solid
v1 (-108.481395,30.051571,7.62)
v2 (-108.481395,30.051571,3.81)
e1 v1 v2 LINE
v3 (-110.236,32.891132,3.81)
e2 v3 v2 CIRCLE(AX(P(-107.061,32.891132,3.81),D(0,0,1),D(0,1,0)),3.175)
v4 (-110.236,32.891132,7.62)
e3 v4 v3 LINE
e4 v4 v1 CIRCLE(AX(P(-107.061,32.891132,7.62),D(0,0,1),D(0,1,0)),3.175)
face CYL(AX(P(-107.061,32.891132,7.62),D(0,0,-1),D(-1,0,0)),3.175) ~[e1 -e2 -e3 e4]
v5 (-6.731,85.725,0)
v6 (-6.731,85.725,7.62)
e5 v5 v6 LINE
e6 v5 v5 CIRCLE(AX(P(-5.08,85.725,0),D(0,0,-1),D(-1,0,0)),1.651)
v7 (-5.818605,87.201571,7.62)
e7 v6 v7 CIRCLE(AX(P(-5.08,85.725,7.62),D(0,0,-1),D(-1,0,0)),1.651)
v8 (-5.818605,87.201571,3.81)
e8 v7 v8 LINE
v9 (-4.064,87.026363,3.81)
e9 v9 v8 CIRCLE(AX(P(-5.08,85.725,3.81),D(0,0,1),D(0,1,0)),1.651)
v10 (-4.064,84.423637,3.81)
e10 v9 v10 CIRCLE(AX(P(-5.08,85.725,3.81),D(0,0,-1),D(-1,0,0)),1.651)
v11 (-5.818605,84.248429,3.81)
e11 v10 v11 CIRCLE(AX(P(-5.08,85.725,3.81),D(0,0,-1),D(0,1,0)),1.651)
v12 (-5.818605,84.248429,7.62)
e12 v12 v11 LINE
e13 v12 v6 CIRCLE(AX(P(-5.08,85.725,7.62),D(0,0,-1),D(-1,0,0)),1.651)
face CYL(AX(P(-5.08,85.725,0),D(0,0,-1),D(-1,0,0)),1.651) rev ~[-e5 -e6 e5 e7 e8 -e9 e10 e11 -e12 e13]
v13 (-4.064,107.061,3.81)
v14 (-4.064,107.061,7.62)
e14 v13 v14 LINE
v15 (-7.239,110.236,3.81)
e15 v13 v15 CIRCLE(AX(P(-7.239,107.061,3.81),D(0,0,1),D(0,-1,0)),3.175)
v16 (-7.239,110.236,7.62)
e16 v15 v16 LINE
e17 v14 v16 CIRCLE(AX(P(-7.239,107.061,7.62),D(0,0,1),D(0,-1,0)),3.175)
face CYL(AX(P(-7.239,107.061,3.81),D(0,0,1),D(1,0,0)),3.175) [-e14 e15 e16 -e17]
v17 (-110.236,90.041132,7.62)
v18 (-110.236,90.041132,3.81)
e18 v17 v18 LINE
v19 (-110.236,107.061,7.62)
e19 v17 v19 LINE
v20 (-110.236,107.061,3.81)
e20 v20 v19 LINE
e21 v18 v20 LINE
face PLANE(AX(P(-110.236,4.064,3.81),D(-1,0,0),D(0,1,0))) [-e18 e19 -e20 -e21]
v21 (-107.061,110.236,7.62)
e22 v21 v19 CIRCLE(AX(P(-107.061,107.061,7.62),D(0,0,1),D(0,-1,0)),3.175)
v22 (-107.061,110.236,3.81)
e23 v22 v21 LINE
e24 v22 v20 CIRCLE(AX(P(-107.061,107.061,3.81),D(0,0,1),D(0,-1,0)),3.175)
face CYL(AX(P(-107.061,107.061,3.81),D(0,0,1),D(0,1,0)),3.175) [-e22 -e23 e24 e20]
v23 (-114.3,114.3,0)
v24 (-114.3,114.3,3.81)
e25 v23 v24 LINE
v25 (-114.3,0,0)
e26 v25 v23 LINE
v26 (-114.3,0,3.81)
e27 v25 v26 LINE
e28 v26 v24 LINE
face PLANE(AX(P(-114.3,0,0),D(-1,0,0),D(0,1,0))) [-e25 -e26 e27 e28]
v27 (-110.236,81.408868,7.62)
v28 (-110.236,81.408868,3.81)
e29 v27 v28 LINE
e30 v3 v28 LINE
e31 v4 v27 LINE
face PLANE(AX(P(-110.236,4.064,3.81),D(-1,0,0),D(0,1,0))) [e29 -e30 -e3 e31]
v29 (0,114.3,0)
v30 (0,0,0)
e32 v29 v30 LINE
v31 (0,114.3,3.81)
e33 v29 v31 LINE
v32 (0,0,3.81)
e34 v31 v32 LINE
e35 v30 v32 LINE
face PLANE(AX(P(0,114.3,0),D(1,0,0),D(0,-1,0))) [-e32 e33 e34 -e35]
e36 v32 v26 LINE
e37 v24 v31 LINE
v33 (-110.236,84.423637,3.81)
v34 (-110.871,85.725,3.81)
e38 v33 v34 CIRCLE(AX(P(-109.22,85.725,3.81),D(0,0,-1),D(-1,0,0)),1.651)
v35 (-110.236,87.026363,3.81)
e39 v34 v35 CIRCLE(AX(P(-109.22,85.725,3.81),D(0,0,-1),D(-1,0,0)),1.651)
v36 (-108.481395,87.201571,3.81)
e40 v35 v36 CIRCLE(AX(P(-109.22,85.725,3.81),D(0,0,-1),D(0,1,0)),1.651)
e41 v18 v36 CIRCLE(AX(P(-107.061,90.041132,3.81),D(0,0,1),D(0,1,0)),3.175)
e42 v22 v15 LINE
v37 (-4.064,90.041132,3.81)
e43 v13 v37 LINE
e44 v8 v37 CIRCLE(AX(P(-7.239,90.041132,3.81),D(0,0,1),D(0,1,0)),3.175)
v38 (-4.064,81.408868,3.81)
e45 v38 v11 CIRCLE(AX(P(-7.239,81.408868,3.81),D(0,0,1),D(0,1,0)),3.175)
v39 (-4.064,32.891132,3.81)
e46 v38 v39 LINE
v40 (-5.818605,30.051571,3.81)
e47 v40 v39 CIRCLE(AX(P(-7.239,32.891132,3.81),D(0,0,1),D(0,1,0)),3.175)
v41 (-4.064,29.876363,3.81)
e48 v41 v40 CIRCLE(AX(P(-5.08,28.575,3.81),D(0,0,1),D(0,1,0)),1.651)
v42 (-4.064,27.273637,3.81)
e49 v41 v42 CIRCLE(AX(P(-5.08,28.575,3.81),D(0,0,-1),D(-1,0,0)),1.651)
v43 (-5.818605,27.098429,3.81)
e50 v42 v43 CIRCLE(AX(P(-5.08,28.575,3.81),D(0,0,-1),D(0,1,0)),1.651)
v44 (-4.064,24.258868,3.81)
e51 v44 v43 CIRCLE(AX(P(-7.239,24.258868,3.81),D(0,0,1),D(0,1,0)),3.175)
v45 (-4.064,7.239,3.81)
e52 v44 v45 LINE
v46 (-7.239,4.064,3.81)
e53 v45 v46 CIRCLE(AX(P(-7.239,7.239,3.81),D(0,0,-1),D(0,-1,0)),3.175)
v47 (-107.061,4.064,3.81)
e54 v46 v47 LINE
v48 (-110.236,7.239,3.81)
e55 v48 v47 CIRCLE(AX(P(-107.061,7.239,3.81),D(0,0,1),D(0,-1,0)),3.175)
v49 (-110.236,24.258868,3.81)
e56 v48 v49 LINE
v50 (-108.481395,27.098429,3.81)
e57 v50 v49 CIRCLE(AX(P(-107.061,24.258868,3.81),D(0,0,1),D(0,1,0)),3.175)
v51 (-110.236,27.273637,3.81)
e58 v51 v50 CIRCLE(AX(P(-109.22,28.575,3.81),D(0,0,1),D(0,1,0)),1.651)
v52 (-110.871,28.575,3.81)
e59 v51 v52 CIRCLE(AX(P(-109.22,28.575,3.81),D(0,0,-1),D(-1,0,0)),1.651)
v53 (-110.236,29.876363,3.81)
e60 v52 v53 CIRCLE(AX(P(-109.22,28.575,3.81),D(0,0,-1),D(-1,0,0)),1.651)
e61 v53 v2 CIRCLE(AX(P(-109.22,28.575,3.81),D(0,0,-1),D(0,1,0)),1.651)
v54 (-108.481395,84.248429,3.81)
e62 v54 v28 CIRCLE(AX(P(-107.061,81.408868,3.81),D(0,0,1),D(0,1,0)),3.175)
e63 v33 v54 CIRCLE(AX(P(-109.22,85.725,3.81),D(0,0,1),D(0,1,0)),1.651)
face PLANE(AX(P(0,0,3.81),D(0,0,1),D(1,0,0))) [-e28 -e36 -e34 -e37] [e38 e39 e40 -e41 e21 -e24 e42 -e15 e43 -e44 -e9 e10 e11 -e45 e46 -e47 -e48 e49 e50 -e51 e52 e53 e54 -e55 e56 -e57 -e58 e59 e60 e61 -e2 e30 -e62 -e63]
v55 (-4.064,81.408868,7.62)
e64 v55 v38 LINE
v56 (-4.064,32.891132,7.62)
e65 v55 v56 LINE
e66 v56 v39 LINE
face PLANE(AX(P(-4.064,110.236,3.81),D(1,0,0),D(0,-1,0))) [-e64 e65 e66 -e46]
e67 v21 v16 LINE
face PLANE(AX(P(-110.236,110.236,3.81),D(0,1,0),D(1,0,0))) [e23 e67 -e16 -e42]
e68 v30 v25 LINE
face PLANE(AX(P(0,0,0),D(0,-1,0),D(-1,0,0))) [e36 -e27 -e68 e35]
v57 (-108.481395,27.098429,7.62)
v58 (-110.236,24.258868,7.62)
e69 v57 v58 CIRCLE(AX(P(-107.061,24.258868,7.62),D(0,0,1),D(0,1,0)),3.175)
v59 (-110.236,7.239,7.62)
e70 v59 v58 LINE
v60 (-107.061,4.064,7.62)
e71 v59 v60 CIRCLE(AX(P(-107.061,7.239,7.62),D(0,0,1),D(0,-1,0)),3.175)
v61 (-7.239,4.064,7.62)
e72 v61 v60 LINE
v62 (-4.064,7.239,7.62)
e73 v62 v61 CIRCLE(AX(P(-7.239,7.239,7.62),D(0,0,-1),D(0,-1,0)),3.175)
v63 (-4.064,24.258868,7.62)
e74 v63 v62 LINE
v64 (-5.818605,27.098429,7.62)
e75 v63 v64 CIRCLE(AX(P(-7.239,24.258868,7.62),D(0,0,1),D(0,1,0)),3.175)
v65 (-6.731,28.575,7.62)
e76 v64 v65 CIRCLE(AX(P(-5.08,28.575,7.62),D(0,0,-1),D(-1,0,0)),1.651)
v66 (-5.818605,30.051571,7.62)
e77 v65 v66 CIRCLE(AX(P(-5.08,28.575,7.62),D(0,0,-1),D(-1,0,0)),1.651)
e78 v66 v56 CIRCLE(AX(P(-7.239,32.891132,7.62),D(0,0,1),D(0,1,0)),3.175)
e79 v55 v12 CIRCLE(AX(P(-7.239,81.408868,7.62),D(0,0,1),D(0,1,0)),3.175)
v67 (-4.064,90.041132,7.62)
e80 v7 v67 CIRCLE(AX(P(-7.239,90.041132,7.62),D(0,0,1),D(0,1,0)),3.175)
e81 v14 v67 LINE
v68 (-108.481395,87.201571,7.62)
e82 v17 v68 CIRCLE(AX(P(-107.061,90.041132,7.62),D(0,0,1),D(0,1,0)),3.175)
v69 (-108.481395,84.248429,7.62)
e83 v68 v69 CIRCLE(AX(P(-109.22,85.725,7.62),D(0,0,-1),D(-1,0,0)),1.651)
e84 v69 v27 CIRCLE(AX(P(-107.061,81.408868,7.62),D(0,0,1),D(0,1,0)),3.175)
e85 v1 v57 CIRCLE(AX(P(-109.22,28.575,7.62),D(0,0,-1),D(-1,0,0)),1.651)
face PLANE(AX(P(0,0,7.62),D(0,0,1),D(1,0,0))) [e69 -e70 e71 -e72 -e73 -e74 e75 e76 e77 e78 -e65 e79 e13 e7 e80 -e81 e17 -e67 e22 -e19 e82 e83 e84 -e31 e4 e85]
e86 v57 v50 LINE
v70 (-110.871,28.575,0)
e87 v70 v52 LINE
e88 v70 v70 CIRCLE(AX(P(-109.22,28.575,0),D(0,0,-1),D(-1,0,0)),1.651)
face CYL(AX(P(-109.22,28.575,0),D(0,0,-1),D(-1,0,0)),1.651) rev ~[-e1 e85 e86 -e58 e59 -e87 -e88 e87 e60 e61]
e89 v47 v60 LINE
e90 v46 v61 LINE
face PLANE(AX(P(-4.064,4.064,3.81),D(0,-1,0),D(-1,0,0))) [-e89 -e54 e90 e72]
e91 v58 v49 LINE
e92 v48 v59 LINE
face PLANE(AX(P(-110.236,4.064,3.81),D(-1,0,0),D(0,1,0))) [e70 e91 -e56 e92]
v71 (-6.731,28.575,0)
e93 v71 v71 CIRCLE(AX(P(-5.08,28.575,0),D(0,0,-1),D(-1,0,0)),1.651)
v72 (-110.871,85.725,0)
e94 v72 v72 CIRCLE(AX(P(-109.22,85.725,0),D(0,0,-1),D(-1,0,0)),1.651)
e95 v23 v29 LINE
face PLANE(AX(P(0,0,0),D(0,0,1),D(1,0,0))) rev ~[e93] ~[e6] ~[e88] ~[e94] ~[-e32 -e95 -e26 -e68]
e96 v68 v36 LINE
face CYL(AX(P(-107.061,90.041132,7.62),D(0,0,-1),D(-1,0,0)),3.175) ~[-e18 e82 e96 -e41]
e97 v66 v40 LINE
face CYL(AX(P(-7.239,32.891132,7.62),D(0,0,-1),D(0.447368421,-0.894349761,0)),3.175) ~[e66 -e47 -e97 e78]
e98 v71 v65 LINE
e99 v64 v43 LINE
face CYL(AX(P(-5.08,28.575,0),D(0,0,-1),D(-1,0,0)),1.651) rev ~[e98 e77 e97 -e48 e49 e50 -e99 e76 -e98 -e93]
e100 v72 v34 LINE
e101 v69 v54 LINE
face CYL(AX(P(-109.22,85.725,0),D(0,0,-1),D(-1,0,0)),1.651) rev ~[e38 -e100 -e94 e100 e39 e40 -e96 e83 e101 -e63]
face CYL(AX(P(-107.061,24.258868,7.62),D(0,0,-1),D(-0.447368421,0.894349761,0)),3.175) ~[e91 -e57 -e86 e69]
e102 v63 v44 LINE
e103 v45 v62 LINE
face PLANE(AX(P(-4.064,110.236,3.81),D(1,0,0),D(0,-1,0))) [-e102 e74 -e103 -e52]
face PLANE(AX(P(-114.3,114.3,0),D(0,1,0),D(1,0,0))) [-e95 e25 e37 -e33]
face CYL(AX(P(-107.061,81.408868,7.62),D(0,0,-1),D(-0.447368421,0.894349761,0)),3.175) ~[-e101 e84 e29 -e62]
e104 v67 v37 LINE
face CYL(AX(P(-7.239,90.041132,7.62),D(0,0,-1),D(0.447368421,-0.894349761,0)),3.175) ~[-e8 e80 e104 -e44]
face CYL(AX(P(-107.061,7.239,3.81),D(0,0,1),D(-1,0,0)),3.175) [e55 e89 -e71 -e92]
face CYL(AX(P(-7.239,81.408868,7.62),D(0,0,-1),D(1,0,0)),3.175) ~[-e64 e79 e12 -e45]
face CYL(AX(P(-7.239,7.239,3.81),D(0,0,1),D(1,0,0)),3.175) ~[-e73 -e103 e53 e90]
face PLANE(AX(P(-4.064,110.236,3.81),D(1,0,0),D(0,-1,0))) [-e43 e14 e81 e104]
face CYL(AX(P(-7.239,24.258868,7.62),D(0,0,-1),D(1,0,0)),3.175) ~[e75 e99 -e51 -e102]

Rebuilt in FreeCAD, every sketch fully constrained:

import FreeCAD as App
import Part
import Sketcher

V = App.Vector
Q = App.Units.Quantity


def edges_at(feature, points):
    """Names of the edges that pass closest to the given points."""
    edges = feature.Shape.Edges
    near = lambda p: min(range(len(edges)), key=lambda i: edges[i].distToShape(Part.Vertex(*p))[0])
    return sorted({f"Edge{near(p) + 1}" for p in points})

doc = App.newDocument("Part")
body = doc.addObject("PartDesign::Body", "Body")

# Sketch on XY plane
sketch1 = body.newObject("Sketcher::SketchObject", "Sketch")
sketch1.AttachmentSupport = (doc.getObject("XY_Plane"), [""])
sketch1.MapMode = "FlatFace"
sketch1.addGeometry([
    Part.LineSegment(V(-114, 0, 0), V(0, 0, 0)),
    Part.LineSegment(V(0, 0, 0), V(0, 114, 0)),
    Part.LineSegment(V(0, 114, 0), V(-114, 114, 0)),
    Part.LineSegment(V(-114, 114, 0), V(-114, 0, 0)),
], False)
sketch1.addConstraint([
    Sketcher.Constraint("Coincident", 0, 2, 1, 1),
    Sketcher.Constraint("Coincident", 1, 2, 2, 1),
    Sketcher.Constraint("Coincident", 2, 2, 3, 1),
    Sketcher.Constraint("Coincident", 3, 2, 0, 1),
    Sketcher.Constraint("Horizontal", 0),
    Sketcher.Constraint("Vertical", 1),
    Sketcher.Constraint("Horizontal", 2),
    Sketcher.Constraint("Vertical", 3),
    Sketcher.Constraint("Coincident", 0, 2, -1, 1),
    Sketcher.Constraint("Equal", 2, 1),
    Sketcher.Constraint("DistanceX", 0, 1, 0, 2, Q("4.5 in")),
])
pad1 = body.newObject("PartDesign::Pad", "Pad")
pad1.Profile = sketch1
pad1.Length = Q("0.15 in")

# Sketch on XY plane
sketch2 = body.newObject("Sketcher::SketchObject", "Sketch001")
sketch2.AttachmentSupport = (doc.getObject("XY_Plane"), [""])
sketch2.MapMode = "FlatFace"
sketch2.AttachmentOffset = App.Placement(V(0, 0, 0.15 * 25.4), App.Rotation())
sketch2.addGeometry([
    Part.LineSegment(V(-110, 4, 0), V(-4, 4, 0)),
    Part.LineSegment(V(-4, 4, 0), V(-4, 110, 0)),
    Part.LineSegment(V(-4, 110, 0), V(-110, 110, 0)),
    Part.LineSegment(V(-110, 110, 0), V(-110, 4, 0)),
], False)
sketch2.addConstraint([
    Sketcher.Constraint("Coincident", 0, 2, 1, 1),
    Sketcher.Constraint("Coincident", 1, 2, 2, 1),
    Sketcher.Constraint("Coincident", 2, 2, 3, 1),
    Sketcher.Constraint("Coincident", 3, 2, 0, 1),
    Sketcher.Constraint("Horizontal", 0),
    Sketcher.Constraint("Vertical", 1),
    Sketcher.Constraint("Horizontal", 2),
    Sketcher.Constraint("Vertical", 3),
    Sketcher.Constraint("Equal", 2, 1),
    Sketcher.Constraint("DistanceX", 0, 2, -1, 1, Q("0.16 in")),
    Sketcher.Constraint("DistanceY", -1, 1, 0, 2, Q("0.16 in")),
    Sketcher.Constraint("DistanceX", 0, 1, 0, 2, Q("4.18 in")),
])
pad2 = body.newObject("PartDesign::Pad", "Pad001")
pad2.Profile = sketch2
pad2.Length = Q("0.15 in")
doc.recompute()

fillet = body.newObject("PartDesign::Fillet", "Fillet")
fillet.Base = (pad2, edges_at(pad2, [
    (-4.064, 110.236, 5.715),
    (-110.236, 110.236, 5.715),
    (-110.236, 4.064, 5.715),
    (-4.064, 4.064, 5.715),
]))
fillet.Radius = Q("0.125 in")

# Sketch on XY plane
sketch3 = body.newObject("Sketcher::SketchObject", "Sketch002")
sketch3.AttachmentSupport = (doc.getObject("XY_Plane"), [""])
sketch3.MapMode = "FlatFace"
sketch3.addGeometry([
    Part.Circle(V(-109.2, 85.7, 0), V(0, 0, 1), 1.7),
    Part.Circle(V(-109.2, 28.6, 0), V(0, 0, 1), 1.7),
    Part.Circle(V(-5.1, 85.7, 0), V(0, 0, 1), 1.7),
    Part.Circle(V(-5.1, 28.6, 0), V(0, 0, 1), 1.7),
], False)
sketch3.addConstraint([
    Sketcher.Constraint("Equal", 0, 1),
    Sketcher.Constraint("Equal", 1, 2),
    Sketcher.Constraint("Equal", 2, 3),
    Sketcher.Constraint("Horizontal", 0, 3, 2, 3),
    Sketcher.Constraint("Horizontal", 1, 3, 3, 3),
    Sketcher.Constraint("Vertical", 0, 3, 1, 3),
    Sketcher.Constraint("Vertical", 2, 3, 3, 3),
    Sketcher.Constraint("Diameter", 0, Q("0.13 in")),
    Sketcher.Constraint("DistanceX", 2, 3, -1, 1, Q("0.2 in")),
    Sketcher.Constraint("DistanceX", 0, 3, 2, 3, Q("4.1 in")),
    Sketcher.Constraint("DistanceY", 1, 3, 0, 3, Q("2.25 in")),
    Sketcher.Constraint("DistanceY", -1, 1, 1, 3, Q("1.125 in")),
])
pocket1 = body.newObject("PartDesign::Pocket", "Pocket")
pocket1.Profile = sketch3
pocket1.Length = Q("0.3 in")
pocket1.Reversed = True
doc.recompute()

fillet2 = body.newObject("PartDesign::Fillet", "Fillet001")
fillet2.Base = (pocket1, edges_at(pocket1, [
    (-4.064, 27.274, 5.715),
    (-4.064, 29.876, 5.715),
    (-4.064, 84.424, 5.715),
    (-4.064, 87.026, 5.715),
    (-110.236, 87.026, 5.715),
    (-110.236, 84.424, 5.715),
    (-110.236, 29.876, 5.715),
    (-110.236, 27.274, 5.715),
]))
fillet2.Radius = Q("0.125 in")

doc.recompute()
